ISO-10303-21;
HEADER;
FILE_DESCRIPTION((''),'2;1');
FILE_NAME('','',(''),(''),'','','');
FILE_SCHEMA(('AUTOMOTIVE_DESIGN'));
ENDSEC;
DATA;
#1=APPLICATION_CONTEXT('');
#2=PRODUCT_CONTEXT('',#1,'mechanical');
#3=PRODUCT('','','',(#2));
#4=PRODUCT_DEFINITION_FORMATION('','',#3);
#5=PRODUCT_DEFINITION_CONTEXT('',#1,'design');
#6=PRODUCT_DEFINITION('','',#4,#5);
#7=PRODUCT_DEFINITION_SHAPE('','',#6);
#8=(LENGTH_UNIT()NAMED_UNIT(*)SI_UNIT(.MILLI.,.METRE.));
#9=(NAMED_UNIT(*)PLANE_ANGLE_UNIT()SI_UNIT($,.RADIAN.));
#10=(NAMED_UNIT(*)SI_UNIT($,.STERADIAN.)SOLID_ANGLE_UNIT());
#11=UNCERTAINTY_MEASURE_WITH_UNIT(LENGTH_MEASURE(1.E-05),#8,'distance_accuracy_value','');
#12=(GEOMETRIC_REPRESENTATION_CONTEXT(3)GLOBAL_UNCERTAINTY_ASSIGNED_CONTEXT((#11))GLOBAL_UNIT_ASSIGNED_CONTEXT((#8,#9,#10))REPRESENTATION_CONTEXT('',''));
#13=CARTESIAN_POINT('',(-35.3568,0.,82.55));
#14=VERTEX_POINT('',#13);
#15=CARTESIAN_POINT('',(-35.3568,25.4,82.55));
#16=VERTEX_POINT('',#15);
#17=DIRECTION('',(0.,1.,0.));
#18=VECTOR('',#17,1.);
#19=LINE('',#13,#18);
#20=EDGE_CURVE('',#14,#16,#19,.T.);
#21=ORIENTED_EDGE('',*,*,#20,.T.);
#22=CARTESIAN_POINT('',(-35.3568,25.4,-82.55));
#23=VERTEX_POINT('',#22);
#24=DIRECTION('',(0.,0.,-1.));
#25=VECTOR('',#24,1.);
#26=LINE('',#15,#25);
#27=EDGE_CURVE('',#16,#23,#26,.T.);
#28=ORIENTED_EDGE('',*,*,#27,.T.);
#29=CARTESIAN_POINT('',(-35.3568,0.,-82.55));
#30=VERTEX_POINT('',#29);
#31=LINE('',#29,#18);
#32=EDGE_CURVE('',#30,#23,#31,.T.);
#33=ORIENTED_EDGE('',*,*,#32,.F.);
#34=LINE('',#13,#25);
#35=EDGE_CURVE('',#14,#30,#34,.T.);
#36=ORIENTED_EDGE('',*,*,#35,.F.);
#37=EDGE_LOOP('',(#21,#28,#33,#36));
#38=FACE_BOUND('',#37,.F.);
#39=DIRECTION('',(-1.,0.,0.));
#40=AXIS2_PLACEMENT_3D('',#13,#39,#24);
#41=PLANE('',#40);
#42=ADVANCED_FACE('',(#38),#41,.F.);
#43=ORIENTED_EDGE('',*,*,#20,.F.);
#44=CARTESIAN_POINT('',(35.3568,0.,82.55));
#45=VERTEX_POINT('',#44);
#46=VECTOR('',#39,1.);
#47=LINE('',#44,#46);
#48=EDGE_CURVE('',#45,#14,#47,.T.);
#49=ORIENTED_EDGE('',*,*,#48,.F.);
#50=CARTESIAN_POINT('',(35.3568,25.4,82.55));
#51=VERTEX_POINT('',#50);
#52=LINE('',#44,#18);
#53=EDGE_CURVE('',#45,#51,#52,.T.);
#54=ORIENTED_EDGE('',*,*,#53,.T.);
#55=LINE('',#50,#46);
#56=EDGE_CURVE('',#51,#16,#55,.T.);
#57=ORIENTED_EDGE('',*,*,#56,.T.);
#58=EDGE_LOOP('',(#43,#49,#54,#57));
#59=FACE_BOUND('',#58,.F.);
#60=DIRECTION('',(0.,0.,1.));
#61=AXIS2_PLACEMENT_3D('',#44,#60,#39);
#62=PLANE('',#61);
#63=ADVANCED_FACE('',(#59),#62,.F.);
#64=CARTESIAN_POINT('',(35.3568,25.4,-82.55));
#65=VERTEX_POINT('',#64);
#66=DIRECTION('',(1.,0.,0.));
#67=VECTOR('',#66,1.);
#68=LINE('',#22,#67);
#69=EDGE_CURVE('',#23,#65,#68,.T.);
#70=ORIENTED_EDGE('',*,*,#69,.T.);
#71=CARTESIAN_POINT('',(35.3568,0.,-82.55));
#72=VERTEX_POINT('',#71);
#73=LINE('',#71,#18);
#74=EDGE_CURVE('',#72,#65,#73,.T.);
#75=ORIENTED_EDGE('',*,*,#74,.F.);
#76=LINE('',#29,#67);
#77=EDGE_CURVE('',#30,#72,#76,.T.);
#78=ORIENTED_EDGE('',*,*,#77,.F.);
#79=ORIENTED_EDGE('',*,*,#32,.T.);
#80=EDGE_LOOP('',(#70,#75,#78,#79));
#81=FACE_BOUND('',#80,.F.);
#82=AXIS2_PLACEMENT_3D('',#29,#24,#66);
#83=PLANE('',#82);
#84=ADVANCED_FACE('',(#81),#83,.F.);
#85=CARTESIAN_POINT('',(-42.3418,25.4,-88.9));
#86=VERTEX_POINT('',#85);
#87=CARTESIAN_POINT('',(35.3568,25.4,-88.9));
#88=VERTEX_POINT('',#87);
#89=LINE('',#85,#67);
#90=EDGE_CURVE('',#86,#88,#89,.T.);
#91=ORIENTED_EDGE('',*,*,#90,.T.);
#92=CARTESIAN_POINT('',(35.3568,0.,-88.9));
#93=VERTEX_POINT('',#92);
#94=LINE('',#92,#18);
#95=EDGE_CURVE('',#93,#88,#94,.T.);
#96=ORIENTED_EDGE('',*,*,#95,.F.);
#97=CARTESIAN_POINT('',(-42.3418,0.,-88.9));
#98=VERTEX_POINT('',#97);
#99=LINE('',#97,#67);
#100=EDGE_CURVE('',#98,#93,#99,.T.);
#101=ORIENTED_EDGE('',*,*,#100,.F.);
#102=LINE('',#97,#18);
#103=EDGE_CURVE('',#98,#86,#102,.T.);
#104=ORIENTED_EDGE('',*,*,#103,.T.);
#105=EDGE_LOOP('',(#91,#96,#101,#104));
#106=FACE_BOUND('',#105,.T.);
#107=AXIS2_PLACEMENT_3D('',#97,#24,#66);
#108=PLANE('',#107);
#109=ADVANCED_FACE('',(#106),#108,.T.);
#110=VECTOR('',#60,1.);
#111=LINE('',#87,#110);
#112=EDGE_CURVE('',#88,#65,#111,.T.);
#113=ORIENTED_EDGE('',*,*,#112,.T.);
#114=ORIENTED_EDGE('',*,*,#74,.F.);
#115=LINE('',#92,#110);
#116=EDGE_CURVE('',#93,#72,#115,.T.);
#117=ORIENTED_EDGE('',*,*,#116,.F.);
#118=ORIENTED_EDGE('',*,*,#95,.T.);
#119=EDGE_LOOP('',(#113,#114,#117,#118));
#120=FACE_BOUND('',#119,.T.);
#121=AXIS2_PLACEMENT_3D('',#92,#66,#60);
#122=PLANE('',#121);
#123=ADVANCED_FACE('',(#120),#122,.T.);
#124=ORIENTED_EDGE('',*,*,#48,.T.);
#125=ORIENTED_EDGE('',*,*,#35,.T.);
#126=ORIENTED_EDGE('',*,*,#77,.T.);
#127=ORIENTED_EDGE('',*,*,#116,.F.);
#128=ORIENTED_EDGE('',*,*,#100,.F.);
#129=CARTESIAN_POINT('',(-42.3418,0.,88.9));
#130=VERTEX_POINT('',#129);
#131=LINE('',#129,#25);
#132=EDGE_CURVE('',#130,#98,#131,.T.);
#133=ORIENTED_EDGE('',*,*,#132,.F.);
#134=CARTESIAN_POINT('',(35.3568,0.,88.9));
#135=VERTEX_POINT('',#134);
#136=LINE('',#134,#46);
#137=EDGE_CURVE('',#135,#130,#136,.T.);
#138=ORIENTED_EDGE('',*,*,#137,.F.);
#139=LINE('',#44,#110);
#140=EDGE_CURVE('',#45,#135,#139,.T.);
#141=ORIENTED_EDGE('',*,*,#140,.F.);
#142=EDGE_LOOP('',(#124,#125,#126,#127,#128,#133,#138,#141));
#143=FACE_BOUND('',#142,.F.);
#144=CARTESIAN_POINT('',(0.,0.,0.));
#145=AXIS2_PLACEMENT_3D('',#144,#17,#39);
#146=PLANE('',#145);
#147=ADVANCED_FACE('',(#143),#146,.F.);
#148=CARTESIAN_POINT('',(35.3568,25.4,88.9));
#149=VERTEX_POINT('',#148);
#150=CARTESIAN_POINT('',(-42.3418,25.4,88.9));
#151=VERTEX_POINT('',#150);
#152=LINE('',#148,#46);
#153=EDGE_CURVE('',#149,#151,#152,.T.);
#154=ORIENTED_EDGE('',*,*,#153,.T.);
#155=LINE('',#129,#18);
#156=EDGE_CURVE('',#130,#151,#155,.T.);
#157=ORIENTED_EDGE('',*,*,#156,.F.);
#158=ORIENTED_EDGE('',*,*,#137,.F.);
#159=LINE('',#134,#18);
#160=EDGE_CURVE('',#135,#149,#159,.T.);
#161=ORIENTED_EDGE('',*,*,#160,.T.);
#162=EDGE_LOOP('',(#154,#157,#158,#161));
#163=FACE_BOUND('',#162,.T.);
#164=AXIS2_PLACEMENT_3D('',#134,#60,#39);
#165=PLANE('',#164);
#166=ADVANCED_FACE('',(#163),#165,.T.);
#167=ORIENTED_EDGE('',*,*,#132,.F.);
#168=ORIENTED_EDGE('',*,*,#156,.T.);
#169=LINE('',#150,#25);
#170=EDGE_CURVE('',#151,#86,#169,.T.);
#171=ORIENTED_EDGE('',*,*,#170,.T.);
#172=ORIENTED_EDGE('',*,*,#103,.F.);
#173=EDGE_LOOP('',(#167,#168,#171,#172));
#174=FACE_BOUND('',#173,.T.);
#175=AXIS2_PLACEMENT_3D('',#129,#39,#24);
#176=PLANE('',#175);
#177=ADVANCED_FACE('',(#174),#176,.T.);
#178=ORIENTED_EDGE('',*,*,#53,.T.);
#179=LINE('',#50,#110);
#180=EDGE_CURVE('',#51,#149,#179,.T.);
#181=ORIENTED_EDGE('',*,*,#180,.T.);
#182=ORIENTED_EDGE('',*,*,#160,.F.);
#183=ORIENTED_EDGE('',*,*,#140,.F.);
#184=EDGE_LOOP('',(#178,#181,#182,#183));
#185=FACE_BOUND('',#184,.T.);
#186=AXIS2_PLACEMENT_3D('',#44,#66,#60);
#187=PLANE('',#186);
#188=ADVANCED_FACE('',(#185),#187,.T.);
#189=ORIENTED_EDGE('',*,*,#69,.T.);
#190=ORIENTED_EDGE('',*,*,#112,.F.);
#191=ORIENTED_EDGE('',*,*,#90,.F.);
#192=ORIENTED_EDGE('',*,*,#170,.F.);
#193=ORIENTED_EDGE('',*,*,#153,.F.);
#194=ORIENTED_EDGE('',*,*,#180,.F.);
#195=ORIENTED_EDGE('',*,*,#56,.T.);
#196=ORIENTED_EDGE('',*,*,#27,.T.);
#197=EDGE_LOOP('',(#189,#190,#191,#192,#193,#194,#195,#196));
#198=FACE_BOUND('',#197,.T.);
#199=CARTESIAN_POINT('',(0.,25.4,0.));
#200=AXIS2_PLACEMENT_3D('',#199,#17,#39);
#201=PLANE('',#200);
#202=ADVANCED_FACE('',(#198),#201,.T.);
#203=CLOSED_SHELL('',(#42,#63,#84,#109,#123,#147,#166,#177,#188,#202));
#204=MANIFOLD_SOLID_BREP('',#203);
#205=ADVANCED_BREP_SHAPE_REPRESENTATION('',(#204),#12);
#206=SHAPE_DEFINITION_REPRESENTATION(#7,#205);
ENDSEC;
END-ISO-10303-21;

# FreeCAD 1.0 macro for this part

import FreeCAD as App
import Part
import Sketcher
Q = App.Units.Quantity


def add_polygon(sketch, points):
    """Adds a closed chain of lines whose ends are joined by coincident constraints."""
    first, n = sketch.GeometryCount, len(points)
    for a, b in zip(points, points[1:] + points[:1]):
        sketch.addGeometry(Part.LineSegment(App.Vector(*a, 0), App.Vector(*b, 0)), False)
    for i in range(n):
        sketch.addConstraint(Sketcher.Constraint("Coincident", first + i, 2, first + (i + 1) % n, 1))

doc = App.newDocument("Part")
params = doc.addObject("Spreadsheet::Sheet", "Params")
for row, (alias, value) in enumerate([
    ("sketch1_height", "7 in"),
    ("sketch1_height2", "6.5 in"),
    ("sketch1_width", "2.784 in"),
    ("sketch1_width2", "3.059 in"),
    ("pad1_length", "1 in"),
], start=1):
    params.set(f"A{row}", alias)
    params.set(f"B{row}", "=" + value)
    params.setAlias(f"B{row}", alias)

body = doc.addObject("PartDesign::Body", "Body")

# Sketch on XZ plane
sketch1 = doc.addObject("Sketcher::SketchObject", "Sketch")
body.addObject(sketch1)
sketch1.AttachmentSupport = (doc.XZ_Plane, [""])
sketch1.MapMode = "FlatFace"
add_polygon(sketch1, [(35, 89), (35, 83), (-35, 83), (-35, -83), (35, -83), (35, -89), (-42, -89), (-42, 89)])  # lines 0-7
sketch1.addConstraint(Sketcher.Constraint("Vertical", 0))
sketch1.addConstraint(Sketcher.Constraint("Horizontal", 1))
sketch1.addConstraint(Sketcher.Constraint("Vertical", 2))
sketch1.addConstraint(Sketcher.Constraint("Horizontal", 3))
sketch1.addConstraint(Sketcher.Constraint("Vertical", 4))
sketch1.addConstraint(Sketcher.Constraint("Horizontal", 5))
sketch1.addConstraint(Sketcher.Constraint("Vertical", 6))
sketch1.addConstraint(Sketcher.Constraint("Horizontal", 7))
sketch1.addConstraint(Sketcher.Constraint("Symmetric", 0, 2, 2, 2, -1, 1))
sketch1.addConstraint(Sketcher.Constraint("Symmetric", 4, 2, 7, 2, -1))
sketch1.addConstraint(Sketcher.Constraint("DistanceY", 6, 1, 6, 2, Q("7 in")))
sketch1.addConstraint(Sketcher.Constraint("DistanceY", 2, 2, 2, 1, Q("6.5 in")))
sketch1.addConstraint(Sketcher.Constraint("DistanceX", 1, 2, 1, 1, Q("2.784 in")))
sketch1.addConstraint(Sketcher.Constraint("DistanceX", 5, 2, 5, 1, Q("3.059 in")))
sketch1.setExpression("Constraints[18]", "Params.sketch1_height")
sketch1.setExpression("Constraints[19]", "Params.sketch1_height2")
sketch1.setExpression("Constraints[20]", "Params.sketch1_width")
sketch1.setExpression("Constraints[21]", "Params.sketch1_width2")
pad1 = doc.addObject("PartDesign::Pad", "Pad")
body.addObject(pad1)
pad1.Profile = sketch1
pad1.setExpression("Length", "Params.pad1_length")
pad1.Reversed = True

doc.recompute()
